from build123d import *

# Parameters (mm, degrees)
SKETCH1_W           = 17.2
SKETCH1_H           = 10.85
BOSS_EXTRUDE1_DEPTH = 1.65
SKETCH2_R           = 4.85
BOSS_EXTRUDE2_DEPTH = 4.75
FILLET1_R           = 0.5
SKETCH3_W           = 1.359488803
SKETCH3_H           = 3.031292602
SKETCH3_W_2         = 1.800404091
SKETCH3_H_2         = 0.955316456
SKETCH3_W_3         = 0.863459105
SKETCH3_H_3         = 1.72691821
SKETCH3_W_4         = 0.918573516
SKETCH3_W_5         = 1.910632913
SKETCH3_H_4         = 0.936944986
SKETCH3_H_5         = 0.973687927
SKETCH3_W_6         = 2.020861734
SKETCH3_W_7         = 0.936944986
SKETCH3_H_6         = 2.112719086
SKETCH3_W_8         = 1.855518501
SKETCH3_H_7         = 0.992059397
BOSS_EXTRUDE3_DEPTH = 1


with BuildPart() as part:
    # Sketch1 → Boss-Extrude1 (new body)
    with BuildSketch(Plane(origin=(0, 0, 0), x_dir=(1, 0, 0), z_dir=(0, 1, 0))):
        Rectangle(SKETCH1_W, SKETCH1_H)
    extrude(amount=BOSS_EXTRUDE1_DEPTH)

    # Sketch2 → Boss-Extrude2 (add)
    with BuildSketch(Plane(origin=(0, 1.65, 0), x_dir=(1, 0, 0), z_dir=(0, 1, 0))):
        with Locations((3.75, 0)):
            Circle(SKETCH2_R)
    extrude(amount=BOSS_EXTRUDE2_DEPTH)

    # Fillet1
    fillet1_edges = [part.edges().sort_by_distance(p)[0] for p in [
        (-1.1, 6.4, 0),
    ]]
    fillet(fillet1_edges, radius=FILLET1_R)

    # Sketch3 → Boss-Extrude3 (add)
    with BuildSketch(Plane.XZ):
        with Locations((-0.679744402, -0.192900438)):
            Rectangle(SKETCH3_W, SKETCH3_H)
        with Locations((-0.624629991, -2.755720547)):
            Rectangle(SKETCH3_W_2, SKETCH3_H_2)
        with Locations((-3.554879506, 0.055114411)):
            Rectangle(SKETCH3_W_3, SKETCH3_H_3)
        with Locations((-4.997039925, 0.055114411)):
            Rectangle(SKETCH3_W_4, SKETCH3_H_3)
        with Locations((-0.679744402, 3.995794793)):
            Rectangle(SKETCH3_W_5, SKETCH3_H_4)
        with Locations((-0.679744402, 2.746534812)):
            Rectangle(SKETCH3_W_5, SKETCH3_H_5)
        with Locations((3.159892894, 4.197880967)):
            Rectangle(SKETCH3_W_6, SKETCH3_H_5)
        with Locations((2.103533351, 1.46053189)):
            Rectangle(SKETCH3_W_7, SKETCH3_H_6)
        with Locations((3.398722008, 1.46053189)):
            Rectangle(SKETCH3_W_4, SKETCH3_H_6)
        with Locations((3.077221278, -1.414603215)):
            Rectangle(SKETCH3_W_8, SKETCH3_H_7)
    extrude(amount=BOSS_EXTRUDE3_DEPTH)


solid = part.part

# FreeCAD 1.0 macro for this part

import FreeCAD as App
import Part
import Sketcher
from FreeCAD import Vector


def edges_at(feature, points):
    """Names of the edges that pass closest to the given points."""
    edges = feature.Shape.Edges
    near = lambda p: min(range(len(edges)), key=lambda i: edges[i].distToShape(Part.Vertex(*p))[0])
    return sorted({f"Edge{near(p) + 1}" for p in points})

doc = App.newDocument("Part")
body = doc.addObject("PartDesign::Body", "Body")

# Sketch on XZ plane
sketch1 = body.newObject("Sketcher::SketchObject", "Sketch")
sketch1.AttachmentSupport = (doc.getObject("XZ_Plane"), [""])
sketch1.MapMode = "FlatFace"
sketch1.addGeometry([
    Part.LineSegment(Vector(-9, -5, 0), Vector(-9, 5, 0)),
    Part.LineSegment(Vector(-9, 5, 0), Vector(9, 5, 0)),
    Part.LineSegment(Vector(9, 5, 0), Vector(9, -5, 0)),
    Part.LineSegment(Vector(9, -5, 0), Vector(-9, -5, 0)),
], False)
sketch1.addConstraint([
    Sketcher.Constraint("Coincident", 0, 2, 1, 1),
    Sketcher.Constraint("Coincident", 1, 2, 2, 1),
    Sketcher.Constraint("Coincident", 2, 2, 3, 1),
    Sketcher.Constraint("Coincident", 3, 2, 0, 1),
    Sketcher.Constraint("Vertical", 0),
    Sketcher.Constraint("Horizontal", 1),
    Sketcher.Constraint("Vertical", 2),
    Sketcher.Constraint("Horizontal", 3),
    Sketcher.Constraint("Symmetric", 0, 2, 2, 2, -1, 1),
    Sketcher.Constraint("DistanceX", 1, 1, 1, 2, 17.2),
    Sketcher.Constraint("DistanceY", 0, 1, 0, 2, 10.85),
])
pad1 = body.newObject("PartDesign::Pad", "Pad")
pad1.Profile = sketch1
pad1.Length = 1.65
pad1.Reversed = True

# Sketch on XZ plane
sketch2 = body.newObject("Sketcher::SketchObject", "Sketch001")
sketch2.AttachmentSupport = (doc.getObject("XZ_Plane"), [""])
sketch2.MapMode = "FlatFace"
sketch2.AttachmentOffset = App.Placement(Vector(0, 0, -1.65), App.Rotation())
sketch2.addGeometry(Part.Circle(Vector(3.8, 0, 0), Vector(0, 0, 1), 4.8), False)
sketch2.addConstraint([
    Sketcher.Constraint("PointOnObject", 0, 3, -1),
    Sketcher.Constraint("Diameter", 0, 9.7),
    Sketcher.Constraint("DistanceX", -1, 1, 0, 3, 3.75),
])
pad2 = body.newObject("PartDesign::Pad", "Pad001")
pad2.Profile = sketch2
pad2.Length = 4.75
pad2.Reversed = True
doc.recompute()

fillet = body.newObject("PartDesign::Fillet", "Fillet")
fillet.Base = (pad2, edges_at(pad2, [(-1.1, 6.4, 0)]))
fillet.Radius = 0.5

# Sketch on XZ plane
sketch3 = body.newObject("Sketcher::SketchObject", "Sketch002")
sketch3.AttachmentSupport = (doc.getObject("XZ_Plane"), [""])
sketch3.MapMode = "FlatFace"
sketch3.addGeometry([
    Part.LineSegment(Vector(-1.4, 1.3, 0), Vector(-1.4, -1.7, 0)),  # 0
    Part.LineSegment(Vector(-1.4, -1.7, 0), Vector(0, -1.7, 0)),  # 1
    Part.LineSegment(Vector(0, -1.7, 0), Vector(0, 1.3, 0)),  # 2
    Part.LineSegment(Vector(0, 1.3, 0), Vector(-1.4, 1.3, 0)),  # 3
    Part.LineSegment(Vector(-1.5, -2.3, 0), Vector(-1.5, -3.2, 0)),  # 4
    Part.LineSegment(Vector(-1.5, -3.2, 0), Vector(0.3, -3.2, 0)),  # 5
    Part.LineSegment(Vector(0.3, -3.2, 0), Vector(0.3, -2.3, 0)),  # 6
    Part.LineSegment(Vector(0.3, -2.3, 0), Vector(-1.5, -2.3, 0)),  # 7
    Part.LineSegment(Vector(-4, 0.9, 0), Vector(-4, -0.8, 0)),  # 8
    Part.LineSegment(Vector(-4, -0.8, 0), Vector(-3.1, -0.8, 0)),  # 9
    Part.LineSegment(Vector(-3.1, -0.8, 0), Vector(-3.1, 0.9, 0)),  # 10
    Part.LineSegment(Vector(-3.1, 0.9, 0), Vector(-4, 0.9, 0)),  # 11
    Part.LineSegment(Vector(-5.5, 0.9, 0), Vector(-5.5, -0.8, 0)),  # 12
    Part.LineSegment(Vector(-5.5, -0.8, 0), Vector(-4.5, -0.8, 0)),  # 13
    Part.LineSegment(Vector(-4.5, -0.8, 0), Vector(-4.5, 0.9, 0)),  # 14
    Part.LineSegment(Vector(-4.5, 0.9, 0), Vector(-5.5, 0.9, 0)),  # 15
    Part.LineSegment(Vector(-1.6, 4.5, 0), Vector(-1.6, 3.5, 0)),  # 16
    Part.LineSegment(Vector(-1.6, 3.5, 0), Vector(0.3, 3.5, 0)),  # 17
    Part.LineSegment(Vector(0.3, 3.5, 0), Vector(0.3, 4.5, 0)),  # 18
    Part.LineSegment(Vector(0.3, 4.5, 0), Vector(-1.6, 4.5, 0)),  # 19
    Part.LineSegment(Vector(-1.6, 3.2, 0), Vector(-1.6, 2.3, 0)),  # 20
    Part.LineSegment(Vector(-1.6, 2.3, 0), Vector(0.3, 2.3, 0)),  # 21
    Part.LineSegment(Vector(0.3, 2.3, 0), Vector(0.3, 3.2, 0)),  # 22
    Part.LineSegment(Vector(0.3, 3.2, 0), Vector(-1.6, 3.2, 0)),  # 23
    Part.LineSegment(Vector(2.1, 4.7, 0), Vector(2.1, 3.7, 0)),  # 24
    Part.LineSegment(Vector(2.1, 3.7, 0), Vector(4.2, 3.7, 0)),  # 25
    Part.LineSegment(Vector(4.2, 3.7, 0), Vector(4.2, 4.7, 0)),  # 26
    Part.LineSegment(Vector(4.2, 4.7, 0), Vector(2.1, 4.7, 0)),  # 27
    Part.LineSegment(Vector(1.6, 2.5, 0), Vector(1.6, 0.4, 0)),  # 28
    Part.LineSegment(Vector(1.6, 0.4, 0), Vector(2.6, 0.4, 0)),  # 29
    Part.LineSegment(Vector(2.6, 0.4, 0), Vector(2.6, 2.5, 0)),  # 30
    Part.LineSegment(Vector(2.6, 2.5, 0), Vector(1.6, 2.5, 0)),  # 31
    Part.LineSegment(Vector(2.9, 2.5, 0), Vector(2.9, 0.4, 0)),  # 32
    Part.LineSegment(Vector(2.9, 0.4, 0), Vector(3.9, 0.4, 0)),  # 33
    Part.LineSegment(Vector(3.9, 0.4, 0), Vector(3.9, 2.5, 0)),  # 34
    Part.LineSegment(Vector(3.9, 2.5, 0), Vector(2.9, 2.5, 0)),  # 35
    Part.LineSegment(Vector(2.1, -0.9, 0), Vector(2.1, -1.9, 0)),  # 36
    Part.LineSegment(Vector(2.1, -1.9, 0), Vector(4, -1.9, 0)),  # 37
    Part.LineSegment(Vector(4, -1.9, 0), Vector(4, -0.9, 0)),  # 38
    Part.LineSegment(Vector(4, -0.9, 0), Vector(2.1, -0.9, 0)),  # 39
], False)
sketch3.addConstraint([
    Sketcher.Constraint("Coincident", 0, 2, 1, 1),
    Sketcher.Constraint("Coincident", 1, 2, 2, 1),
    Sketcher.Constraint("Coincident", 2, 2, 3, 1),
    Sketcher.Constraint("Coincident", 3, 2, 0, 1),
    Sketcher.Constraint("Coincident", 4, 2, 5, 1),
    Sketcher.Constraint("Coincident", 5, 2, 6, 1),
    Sketcher.Constraint("Coincident", 6, 2, 7, 1),
    Sketcher.Constraint("Coincident", 7, 2, 4, 1),
    Sketcher.Constraint("Coincident", 8, 2, 9, 1),
    Sketcher.Constraint("Coincident", 9, 2, 10, 1),
    Sketcher.Constraint("Coincident", 10, 2, 11, 1),
    Sketcher.Constraint("Coincident", 11, 2, 8, 1),
    Sketcher.Constraint("Coincident", 12, 2, 13, 1),
    Sketcher.Constraint("Coincident", 13, 2, 14, 1),
    Sketcher.Constraint("Coincident", 14, 2, 15, 1),
    Sketcher.Constraint("Coincident", 15, 2, 12, 1),
    Sketcher.Constraint("Coincident", 16, 2, 17, 1),
    Sketcher.Constraint("Coincident", 17, 2, 18, 1),
    Sketcher.Constraint("Coincident", 18, 2, 19, 1),
    Sketcher.Constraint("Coincident", 19, 2, 16, 1),
    Sketcher.Constraint("Coincident", 20, 2, 21, 1),
    Sketcher.Constraint("Coincident", 21, 2, 22, 1),
    Sketcher.Constraint("Coincident", 22, 2, 23, 1),
    Sketcher.Constraint("Coincident", 23, 2, 20, 1),
    Sketcher.Constraint("Coincident", 24, 2, 25, 1),
    Sketcher.Constraint("Coincident", 25, 2, 26, 1),
    Sketcher.Constraint("Coincident", 26, 2, 27, 1),
    Sketcher.Constraint("Coincident", 27, 2, 24, 1),
    Sketcher.Constraint("Coincident", 28, 2, 29, 1),
    Sketcher.Constraint("Coincident", 29, 2, 30, 1),
    Sketcher.Constraint("Coincident", 30, 2, 31, 1),
    Sketcher.Constraint("Coincident", 31, 2, 28, 1),
    Sketcher.Constraint("Coincident", 32, 2, 33, 1),
    Sketcher.Constraint("Coincident", 33, 2, 34, 1),
    Sketcher.Constraint("Coincident", 34, 2, 35, 1),
    Sketcher.Constraint("Coincident", 35, 2, 32, 1),
    Sketcher.Constraint("Coincident", 36, 2, 37, 1),
    Sketcher.Constraint("Coincident", 37, 2, 38, 1),
    Sketcher.Constraint("Coincident", 38, 2, 39, 1),
    Sketcher.Constraint("Coincident", 39, 2, 36, 1),
    Sketcher.Constraint("Vertical", 0),
    Sketcher.Constraint("Horizontal", 1),
    Sketcher.Constraint("Vertical", 2),
    Sketcher.Constraint("Horizontal", 3),
    Sketcher.Constraint("Vertical", 4),
    Sketcher.Constraint("Horizontal", 5),
    Sketcher.Constraint("Vertical", 6),
    Sketcher.Constraint("Horizontal", 7),
    Sketcher.Constraint("Vertical", 8),
    Sketcher.Constraint("Horizontal", 9),
    Sketcher.Constraint("Vertical", 10),
    Sketcher.Constraint("Horizontal", 11),
    Sketcher.Constraint("Vertical", 12),
    Sketcher.Constraint("Horizontal", 13),
    Sketcher.Constraint("Vertical", 14),
    Sketcher.Constraint("Horizontal", 15),
    Sketcher.Constraint("Vertical", 16),
    Sketcher.Constraint("Horizontal", 17),
    Sketcher.Constraint("Vertical", 18),
    Sketcher.Constraint("Horizontal", 19),
    Sketcher.Constraint("Vertical", 20),
    Sketcher.Constraint("Horizontal", 21),
    Sketcher.Constraint("Vertical", 22),
    Sketcher.Constraint("Horizontal", 23),
    Sketcher.Constraint("Vertical", 24),
    Sketcher.Constraint("Horizontal", 25),
    Sketcher.Constraint("Vertical", 26),
    Sketcher.Constraint("Horizontal", 27),
    Sketcher.Constraint("Vertical", 28),
    Sketcher.Constraint("Horizontal", 29),
    Sketcher.Constraint("Vertical", 30),
    Sketcher.Constraint("Horizontal", 31),
    Sketcher.Constraint("Vertical", 32),
    Sketcher.Constraint("Horizontal", 33),
    Sketcher.Constraint("Vertical", 34),
    Sketcher.Constraint("Horizontal", 35),
    Sketcher.Constraint("Vertical", 36),
    Sketcher.Constraint("Horizontal", 37),
    Sketcher.Constraint("Vertical", 38),
    Sketcher.Constraint("Horizontal", 39),
    Sketcher.Constraint("Symmetric", 5, 2, 22, 2, -1),
    Sketcher.Constraint("PointOnObject", 1, 2, -2),
    Sketcher.Constraint("Horizontal", 9, 2, 12, 2),
    Sketcher.Constraint("Horizontal", 11, 2, 14, 2),
    Sketcher.Constraint("Horizontal", 29, 2, 32, 2),
    Sketcher.Constraint("Horizontal", 31, 2, 34, 2),
    Sketcher.Constraint("Vertical", 6, 2, 17, 2),
    Sketcher.Constraint("Vertical", 19, 2, 20, 2),
    Sketcher.Constraint("Vertical", 27, 2, 36, 2),
    Sketcher.Constraint("Equal", 15, 33),
    Sketcher.Constraint("Equal", 31, 16),
    Sketcher.Constraint("Equal", 22, 24),
    Sketcher.Constraint("DistanceX", 1, 1, 1, 2, 1.359489),
    Sketcher.Constraint("DistanceX", 9, 1, 9, 2, 0.863459),
    Sketcher.Constraint("DistanceX", 25, 1, 25, 2, 2.020862),
    Sketcher.Constraint("DistanceX", 37, 1, 37, 2, 1.855519),
    Sketcher.Constraint("DistanceY", 8, 2, 8, 1, 1.726918),
    Sketcher.Constraint("DistanceY", 28, 2, 28, 1, 2.112719),
    Sketcher.Constraint("DistanceY", 36, 2, 36, 1, 0.992059),
    Sketcher.Constraint("DistanceY", 21, 2, 30, 2, 0.257201),
    Sketcher.Constraint("DistanceX", 31, 2, 24, 2, 0.514401),
    Sketcher.Constraint("DistanceX", 5, 1, 5, 2, 1.800404),
    Sketcher.Constraint("DistanceX", 13, 1, 13, 2, 0.918574),
    Sketcher.Constraint("DistanceX", 17, 1, 17, 2, 1.910633),
    Sketcher.Constraint("DistanceX", 29, 1, 29, 2, 0.936945),
    Sketcher.Constraint("DistanceY", 0, 2, 0, 1, 3.031293),
    Sketcher.Constraint("DistanceY", 4, 2, 4, 1, 0.955316),
    Sketcher.Constraint("DistanceY", 20, 2, 20, 1, 0.973688),
    Sketcher.Constraint("DistanceY", 4, 2, -1, 1, 3.233379),
    Sketcher.Constraint("DistanceX", 8, 2, -1, 1, 3.986609),
    Sketcher.Constraint("DistanceX", 16, 2, -1, 1, 1.635061),
    Sketcher.Constraint("DistanceX", -1, 1, 28, 2, 1.635061),
    Sketcher.Constraint("DistanceX", -1, 1, 33, 2, 3.858009),
    Sketcher.Constraint("DistanceY", 6, 2, 2, 2, 3.600808),
    Sketcher.Constraint("DistanceY", 8, 2, 3, 2, 2.131091),
    Sketcher.Constraint("DistanceY", 10, 2, 16, 2, 2.608749),
    Sketcher.Constraint("DistanceY", 22, 2, 24, 2, 0.477658),
    Sketcher.Constraint("DistanceY", 6, 2, 36, 2, 0.367429),
    Sketcher.Constraint("DistanceX", 12, 2, -1, 1, 5.456327),
])
pad3 = body.newObject("PartDesign::Pad", "Pad002")
pad3.Profile = sketch3
pad3.Length = 1

doc.recompute()
